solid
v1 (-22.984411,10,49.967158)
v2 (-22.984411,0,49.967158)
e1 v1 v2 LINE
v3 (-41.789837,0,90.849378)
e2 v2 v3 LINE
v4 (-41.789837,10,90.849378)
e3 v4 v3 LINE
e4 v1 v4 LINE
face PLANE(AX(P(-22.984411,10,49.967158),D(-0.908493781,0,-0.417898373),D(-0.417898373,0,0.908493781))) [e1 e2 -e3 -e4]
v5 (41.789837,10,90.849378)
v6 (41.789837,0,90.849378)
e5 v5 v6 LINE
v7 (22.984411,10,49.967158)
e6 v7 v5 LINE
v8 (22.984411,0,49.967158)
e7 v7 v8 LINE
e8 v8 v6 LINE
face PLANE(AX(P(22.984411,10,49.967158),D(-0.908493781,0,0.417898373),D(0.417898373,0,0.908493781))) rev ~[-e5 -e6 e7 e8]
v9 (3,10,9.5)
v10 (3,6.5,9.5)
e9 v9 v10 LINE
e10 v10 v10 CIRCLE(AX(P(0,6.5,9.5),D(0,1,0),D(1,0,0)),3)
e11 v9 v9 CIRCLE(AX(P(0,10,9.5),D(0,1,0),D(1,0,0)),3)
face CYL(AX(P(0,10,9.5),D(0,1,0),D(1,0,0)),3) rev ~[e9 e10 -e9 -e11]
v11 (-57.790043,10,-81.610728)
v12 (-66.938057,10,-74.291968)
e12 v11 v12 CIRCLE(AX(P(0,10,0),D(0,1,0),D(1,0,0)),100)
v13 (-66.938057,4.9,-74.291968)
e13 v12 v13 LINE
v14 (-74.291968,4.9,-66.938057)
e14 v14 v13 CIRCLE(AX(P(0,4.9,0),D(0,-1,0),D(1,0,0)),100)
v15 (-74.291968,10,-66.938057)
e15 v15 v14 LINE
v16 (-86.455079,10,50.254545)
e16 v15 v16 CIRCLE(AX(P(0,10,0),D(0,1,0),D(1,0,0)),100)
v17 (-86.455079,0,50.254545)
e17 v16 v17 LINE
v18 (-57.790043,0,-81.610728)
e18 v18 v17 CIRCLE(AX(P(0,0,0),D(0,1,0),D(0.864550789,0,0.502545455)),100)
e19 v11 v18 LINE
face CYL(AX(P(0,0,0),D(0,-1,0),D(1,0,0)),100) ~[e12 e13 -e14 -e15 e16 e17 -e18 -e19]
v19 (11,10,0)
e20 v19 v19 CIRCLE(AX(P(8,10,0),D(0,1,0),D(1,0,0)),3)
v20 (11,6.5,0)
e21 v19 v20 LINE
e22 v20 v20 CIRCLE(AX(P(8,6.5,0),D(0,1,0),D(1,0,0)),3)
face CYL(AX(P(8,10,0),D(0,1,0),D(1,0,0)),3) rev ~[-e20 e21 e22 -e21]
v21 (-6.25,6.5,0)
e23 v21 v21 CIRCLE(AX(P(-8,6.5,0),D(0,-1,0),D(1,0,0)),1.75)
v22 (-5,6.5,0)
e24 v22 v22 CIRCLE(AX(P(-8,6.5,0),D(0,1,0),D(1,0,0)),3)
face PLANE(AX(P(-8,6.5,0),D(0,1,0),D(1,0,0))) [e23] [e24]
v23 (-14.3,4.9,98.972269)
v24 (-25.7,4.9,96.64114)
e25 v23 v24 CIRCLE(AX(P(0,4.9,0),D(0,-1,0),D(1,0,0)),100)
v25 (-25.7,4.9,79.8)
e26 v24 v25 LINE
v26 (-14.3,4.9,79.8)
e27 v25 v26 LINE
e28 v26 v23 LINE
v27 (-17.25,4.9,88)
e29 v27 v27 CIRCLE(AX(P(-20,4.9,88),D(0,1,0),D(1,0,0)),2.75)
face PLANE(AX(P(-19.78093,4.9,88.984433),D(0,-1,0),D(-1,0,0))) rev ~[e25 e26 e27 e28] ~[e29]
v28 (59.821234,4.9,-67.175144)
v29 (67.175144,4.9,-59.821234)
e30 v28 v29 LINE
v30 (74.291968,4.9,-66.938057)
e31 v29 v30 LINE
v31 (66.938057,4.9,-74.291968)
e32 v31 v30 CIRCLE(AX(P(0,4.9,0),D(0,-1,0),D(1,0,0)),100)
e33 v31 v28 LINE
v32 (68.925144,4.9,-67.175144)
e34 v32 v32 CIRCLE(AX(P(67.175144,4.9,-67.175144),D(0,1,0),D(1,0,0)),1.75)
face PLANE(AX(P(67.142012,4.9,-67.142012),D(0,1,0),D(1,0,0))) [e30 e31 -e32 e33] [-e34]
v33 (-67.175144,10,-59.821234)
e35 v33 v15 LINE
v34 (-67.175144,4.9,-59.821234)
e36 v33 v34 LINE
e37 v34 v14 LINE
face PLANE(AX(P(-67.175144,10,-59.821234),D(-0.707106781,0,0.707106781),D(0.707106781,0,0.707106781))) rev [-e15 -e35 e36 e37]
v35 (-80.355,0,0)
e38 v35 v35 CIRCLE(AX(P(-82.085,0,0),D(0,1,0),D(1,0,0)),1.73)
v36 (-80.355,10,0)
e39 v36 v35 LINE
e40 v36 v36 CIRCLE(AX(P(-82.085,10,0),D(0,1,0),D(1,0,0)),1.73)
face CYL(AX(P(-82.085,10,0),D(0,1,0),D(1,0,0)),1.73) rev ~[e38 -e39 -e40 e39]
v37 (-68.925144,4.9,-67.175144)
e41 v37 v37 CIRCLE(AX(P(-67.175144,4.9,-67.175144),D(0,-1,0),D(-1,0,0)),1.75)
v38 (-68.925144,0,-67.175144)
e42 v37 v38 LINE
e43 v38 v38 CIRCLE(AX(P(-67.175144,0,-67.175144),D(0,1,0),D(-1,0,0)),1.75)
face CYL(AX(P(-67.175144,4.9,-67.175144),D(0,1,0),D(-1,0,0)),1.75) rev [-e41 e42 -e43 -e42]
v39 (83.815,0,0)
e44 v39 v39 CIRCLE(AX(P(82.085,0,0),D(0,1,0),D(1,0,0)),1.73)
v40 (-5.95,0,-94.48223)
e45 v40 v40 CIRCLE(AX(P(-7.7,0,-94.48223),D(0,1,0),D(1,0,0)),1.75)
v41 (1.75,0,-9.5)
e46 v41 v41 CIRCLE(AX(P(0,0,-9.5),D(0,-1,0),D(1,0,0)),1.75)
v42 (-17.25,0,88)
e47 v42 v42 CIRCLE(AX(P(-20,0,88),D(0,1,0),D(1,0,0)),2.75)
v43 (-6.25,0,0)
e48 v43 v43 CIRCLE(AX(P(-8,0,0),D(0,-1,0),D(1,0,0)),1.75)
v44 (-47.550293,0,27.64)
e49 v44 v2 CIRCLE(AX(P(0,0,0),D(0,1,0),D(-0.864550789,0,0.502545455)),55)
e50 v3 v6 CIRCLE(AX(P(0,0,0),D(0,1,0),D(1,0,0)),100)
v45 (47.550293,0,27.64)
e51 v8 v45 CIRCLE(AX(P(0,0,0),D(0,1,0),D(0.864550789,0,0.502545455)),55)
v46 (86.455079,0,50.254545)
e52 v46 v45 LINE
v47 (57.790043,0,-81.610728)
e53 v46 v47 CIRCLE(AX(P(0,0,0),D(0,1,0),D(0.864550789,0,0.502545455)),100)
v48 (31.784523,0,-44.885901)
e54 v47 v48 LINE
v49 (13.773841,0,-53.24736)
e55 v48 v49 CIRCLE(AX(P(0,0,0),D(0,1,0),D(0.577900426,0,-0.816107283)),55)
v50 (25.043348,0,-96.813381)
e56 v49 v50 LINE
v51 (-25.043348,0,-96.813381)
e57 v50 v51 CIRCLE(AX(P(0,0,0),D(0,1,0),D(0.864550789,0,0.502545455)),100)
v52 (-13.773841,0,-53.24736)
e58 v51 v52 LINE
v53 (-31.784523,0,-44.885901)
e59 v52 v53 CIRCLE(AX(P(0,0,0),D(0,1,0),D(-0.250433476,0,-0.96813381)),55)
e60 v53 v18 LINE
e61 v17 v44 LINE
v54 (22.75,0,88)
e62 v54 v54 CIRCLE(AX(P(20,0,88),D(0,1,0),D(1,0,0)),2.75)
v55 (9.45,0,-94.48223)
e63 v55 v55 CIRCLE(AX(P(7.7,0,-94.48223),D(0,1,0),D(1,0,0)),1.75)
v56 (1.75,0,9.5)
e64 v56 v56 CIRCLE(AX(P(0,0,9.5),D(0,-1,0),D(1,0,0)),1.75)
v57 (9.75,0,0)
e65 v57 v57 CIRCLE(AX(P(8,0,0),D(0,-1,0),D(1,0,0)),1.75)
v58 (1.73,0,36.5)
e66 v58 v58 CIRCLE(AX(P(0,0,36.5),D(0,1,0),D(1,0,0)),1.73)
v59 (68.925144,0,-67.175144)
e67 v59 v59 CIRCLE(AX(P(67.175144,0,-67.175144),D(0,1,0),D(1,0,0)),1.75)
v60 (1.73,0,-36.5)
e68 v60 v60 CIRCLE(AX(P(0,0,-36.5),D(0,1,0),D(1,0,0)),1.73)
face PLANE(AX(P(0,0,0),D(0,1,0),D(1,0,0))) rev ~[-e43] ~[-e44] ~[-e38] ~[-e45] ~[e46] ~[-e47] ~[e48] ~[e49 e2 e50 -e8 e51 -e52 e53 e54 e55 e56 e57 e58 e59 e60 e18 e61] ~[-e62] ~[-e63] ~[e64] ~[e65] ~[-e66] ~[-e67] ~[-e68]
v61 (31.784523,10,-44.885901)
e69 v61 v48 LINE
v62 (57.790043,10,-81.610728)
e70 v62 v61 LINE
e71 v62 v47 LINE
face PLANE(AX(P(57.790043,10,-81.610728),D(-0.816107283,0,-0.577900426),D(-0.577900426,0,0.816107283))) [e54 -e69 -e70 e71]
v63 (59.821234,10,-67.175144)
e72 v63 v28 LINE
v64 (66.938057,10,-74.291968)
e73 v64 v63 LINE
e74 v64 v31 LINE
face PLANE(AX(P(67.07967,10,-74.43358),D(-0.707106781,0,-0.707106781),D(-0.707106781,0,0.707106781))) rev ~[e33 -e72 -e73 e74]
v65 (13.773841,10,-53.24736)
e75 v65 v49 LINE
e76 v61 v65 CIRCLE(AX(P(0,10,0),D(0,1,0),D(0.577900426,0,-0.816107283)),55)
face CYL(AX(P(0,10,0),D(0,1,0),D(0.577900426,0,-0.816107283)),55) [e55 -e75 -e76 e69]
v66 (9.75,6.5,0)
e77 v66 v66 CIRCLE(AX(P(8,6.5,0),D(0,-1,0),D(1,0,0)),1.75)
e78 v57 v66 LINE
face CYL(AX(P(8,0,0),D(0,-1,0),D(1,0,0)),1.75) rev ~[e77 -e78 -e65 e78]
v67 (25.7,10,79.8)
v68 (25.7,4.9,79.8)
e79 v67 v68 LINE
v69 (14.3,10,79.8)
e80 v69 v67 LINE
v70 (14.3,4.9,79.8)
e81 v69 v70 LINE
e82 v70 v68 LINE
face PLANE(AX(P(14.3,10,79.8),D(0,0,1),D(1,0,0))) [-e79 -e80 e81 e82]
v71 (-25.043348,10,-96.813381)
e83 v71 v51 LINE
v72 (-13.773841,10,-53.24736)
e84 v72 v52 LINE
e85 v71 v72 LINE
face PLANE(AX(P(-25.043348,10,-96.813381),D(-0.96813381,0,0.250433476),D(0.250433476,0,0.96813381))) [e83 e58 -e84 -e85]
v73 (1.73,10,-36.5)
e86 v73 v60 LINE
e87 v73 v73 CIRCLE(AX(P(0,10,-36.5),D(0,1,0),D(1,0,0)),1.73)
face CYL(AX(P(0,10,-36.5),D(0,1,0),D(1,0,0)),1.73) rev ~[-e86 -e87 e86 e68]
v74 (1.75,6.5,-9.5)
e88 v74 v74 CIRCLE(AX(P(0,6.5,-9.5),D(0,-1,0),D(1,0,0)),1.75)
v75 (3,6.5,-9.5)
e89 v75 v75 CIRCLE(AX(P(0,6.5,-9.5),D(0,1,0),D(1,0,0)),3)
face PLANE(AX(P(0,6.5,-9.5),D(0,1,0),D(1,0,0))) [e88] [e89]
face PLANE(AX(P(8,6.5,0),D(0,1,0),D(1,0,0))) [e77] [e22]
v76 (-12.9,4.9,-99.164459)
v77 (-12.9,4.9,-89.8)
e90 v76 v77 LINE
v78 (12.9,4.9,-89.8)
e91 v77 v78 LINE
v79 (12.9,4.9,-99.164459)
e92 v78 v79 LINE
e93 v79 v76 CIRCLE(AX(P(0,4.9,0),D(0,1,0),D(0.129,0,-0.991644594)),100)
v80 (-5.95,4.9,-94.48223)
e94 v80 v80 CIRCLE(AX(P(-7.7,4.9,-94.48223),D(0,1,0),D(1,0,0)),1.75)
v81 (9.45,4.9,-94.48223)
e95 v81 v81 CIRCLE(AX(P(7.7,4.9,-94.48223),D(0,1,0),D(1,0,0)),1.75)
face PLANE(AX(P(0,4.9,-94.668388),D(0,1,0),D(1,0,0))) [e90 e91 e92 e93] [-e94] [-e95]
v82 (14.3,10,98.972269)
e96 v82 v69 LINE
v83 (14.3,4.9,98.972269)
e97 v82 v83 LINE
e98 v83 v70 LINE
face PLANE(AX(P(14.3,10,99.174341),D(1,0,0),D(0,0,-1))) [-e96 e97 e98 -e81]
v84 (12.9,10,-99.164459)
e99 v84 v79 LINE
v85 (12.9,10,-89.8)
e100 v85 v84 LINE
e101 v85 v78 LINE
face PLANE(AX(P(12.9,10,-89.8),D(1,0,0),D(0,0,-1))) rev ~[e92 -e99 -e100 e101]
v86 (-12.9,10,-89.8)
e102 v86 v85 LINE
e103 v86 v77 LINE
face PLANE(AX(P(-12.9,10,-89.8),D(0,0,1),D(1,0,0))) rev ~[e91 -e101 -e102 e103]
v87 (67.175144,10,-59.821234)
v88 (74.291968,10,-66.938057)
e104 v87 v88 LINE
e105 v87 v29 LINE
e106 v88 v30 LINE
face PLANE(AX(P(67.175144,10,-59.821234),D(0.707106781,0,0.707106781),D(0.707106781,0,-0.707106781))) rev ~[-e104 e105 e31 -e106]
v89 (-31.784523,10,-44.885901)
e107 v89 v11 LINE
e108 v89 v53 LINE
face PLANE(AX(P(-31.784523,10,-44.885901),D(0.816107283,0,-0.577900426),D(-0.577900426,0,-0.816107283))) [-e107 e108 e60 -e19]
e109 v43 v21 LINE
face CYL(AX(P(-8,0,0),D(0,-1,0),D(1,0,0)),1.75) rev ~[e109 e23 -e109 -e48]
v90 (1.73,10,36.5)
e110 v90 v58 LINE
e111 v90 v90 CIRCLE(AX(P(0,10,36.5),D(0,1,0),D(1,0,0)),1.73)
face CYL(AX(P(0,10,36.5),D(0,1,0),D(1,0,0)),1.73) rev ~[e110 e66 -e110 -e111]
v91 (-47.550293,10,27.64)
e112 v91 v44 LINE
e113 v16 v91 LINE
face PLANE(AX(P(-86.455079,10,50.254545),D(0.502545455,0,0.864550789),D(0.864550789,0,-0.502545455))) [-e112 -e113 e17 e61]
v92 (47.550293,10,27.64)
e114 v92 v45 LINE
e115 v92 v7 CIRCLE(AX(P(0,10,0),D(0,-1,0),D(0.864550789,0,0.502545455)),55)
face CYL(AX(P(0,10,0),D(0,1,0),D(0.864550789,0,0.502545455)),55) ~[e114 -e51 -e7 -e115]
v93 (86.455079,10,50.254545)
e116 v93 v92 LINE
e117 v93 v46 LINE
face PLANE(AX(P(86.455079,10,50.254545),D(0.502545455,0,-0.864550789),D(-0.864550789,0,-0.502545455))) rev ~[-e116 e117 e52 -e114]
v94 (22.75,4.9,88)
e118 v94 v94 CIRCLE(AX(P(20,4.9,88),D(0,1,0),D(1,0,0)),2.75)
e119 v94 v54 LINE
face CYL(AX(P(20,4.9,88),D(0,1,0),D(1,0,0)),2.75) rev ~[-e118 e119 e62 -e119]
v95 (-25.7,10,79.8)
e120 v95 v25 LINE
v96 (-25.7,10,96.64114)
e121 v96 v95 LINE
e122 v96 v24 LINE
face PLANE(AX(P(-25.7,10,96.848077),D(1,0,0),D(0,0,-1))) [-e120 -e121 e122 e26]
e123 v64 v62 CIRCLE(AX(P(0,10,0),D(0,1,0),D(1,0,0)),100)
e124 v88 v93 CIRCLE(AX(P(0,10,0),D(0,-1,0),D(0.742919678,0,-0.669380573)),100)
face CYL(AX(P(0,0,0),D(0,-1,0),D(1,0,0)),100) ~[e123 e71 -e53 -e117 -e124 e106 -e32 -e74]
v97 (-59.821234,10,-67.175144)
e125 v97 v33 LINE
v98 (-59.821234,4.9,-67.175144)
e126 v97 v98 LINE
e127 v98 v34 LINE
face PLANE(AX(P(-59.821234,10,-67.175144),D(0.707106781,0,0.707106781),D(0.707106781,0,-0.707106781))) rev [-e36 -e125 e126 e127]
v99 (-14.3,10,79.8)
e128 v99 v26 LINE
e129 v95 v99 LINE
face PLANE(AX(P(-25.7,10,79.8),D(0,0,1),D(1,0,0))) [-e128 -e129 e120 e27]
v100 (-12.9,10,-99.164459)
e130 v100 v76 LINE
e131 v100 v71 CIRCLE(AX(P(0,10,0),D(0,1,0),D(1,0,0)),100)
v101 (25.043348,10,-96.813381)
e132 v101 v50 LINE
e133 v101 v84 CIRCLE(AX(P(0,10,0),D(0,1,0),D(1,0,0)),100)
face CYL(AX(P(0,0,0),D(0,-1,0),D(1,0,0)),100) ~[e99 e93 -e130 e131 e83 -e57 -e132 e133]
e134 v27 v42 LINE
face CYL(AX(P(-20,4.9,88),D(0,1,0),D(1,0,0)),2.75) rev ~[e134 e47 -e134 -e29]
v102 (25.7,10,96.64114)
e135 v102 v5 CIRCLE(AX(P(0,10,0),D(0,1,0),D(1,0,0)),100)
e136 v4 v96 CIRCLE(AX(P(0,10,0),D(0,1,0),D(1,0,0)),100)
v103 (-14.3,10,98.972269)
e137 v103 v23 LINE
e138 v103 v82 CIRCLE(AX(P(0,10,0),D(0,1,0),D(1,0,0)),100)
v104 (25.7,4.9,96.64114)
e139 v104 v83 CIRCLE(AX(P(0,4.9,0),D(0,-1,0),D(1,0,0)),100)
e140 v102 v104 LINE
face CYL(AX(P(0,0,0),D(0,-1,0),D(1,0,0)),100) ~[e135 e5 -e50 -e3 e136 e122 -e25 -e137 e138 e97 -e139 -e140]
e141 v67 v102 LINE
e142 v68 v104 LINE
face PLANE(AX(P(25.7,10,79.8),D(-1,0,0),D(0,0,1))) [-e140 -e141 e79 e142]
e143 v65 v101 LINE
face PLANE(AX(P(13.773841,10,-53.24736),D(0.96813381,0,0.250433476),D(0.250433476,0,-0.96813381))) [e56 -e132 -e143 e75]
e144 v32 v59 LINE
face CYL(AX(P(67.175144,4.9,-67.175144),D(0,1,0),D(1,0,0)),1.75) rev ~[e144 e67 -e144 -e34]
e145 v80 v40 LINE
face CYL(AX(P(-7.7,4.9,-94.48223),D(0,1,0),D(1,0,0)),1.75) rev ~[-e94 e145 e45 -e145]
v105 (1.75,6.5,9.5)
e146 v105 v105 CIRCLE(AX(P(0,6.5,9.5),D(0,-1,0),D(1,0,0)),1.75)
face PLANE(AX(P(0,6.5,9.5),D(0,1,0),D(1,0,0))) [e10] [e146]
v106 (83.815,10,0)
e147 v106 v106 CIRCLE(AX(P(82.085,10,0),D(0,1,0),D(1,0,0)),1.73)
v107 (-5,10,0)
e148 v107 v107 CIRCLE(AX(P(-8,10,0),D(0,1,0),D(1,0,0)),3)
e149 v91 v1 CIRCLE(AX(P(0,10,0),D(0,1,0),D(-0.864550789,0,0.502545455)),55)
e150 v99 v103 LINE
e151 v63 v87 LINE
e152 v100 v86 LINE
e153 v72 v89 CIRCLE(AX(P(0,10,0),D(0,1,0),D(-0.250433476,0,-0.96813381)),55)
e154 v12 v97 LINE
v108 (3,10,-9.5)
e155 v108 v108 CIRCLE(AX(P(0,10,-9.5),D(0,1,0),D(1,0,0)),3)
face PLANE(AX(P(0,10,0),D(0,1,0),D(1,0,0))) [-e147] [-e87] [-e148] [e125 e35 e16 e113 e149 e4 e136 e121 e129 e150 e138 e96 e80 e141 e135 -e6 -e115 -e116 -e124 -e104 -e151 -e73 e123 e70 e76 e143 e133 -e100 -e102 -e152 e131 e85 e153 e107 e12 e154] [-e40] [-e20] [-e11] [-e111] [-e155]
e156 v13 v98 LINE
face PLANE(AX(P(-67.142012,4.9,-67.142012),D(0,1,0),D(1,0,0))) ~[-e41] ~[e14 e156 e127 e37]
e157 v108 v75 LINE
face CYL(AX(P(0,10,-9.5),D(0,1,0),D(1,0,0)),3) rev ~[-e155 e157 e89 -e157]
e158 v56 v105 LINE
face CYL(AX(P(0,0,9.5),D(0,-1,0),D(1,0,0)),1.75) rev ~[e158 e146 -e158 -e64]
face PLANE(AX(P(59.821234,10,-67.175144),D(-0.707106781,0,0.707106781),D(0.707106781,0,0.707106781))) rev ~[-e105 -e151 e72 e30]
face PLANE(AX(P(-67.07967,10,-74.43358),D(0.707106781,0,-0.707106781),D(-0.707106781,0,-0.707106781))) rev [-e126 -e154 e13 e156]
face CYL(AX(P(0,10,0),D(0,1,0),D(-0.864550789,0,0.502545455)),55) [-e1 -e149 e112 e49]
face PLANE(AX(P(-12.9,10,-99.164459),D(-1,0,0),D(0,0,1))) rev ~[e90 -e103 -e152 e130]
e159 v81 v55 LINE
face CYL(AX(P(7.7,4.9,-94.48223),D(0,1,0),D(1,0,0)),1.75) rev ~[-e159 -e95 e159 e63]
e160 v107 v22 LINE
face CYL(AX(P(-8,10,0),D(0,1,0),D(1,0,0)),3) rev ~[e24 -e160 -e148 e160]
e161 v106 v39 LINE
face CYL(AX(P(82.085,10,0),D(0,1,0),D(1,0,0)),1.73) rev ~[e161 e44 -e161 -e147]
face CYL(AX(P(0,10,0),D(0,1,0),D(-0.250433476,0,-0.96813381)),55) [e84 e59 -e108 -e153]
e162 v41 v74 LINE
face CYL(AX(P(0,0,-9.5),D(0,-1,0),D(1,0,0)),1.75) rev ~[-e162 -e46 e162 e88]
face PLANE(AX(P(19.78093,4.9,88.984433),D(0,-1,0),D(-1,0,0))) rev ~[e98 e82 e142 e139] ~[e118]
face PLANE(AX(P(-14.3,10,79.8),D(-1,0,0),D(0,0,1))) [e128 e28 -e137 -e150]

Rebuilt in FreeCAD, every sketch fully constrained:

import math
import FreeCAD as App
import Part
import Sketcher
Q = App.Units.Quantity

doc = App.newDocument("Part")
body = doc.addObject("PartDesign::Body", "Body")

# Sketch on XZ plane
sketch1 = doc.addObject("Sketcher::SketchObject", "Sketch")
body.addObject(sketch1)
sketch1.AttachmentSupport = (doc.XZ_Plane, [""])
sketch1.MapMode = "FlatFace"
sketch1.addGeometry(Part.Circle(App.Vector(0, 0, 0), App.Vector(0, 0, 1), 100), False)
sketch1.addConstraint(Sketcher.Constraint("Coincident", 0, 3, -1, 1))
sketch1.addConstraint(Sketcher.Constraint("Diameter", 0, Q("200 mm")))
pad1 = doc.addObject("PartDesign::Pad", "Pad")
body.addObject(pad1)
pad1.Profile = sketch1
pad1.Length = 10
pad1.Reversed = True

# Sketch on XZ plane
sketch2 = doc.addObject("Sketcher::SketchObject", "Sketch001")
body.addObject(sketch2)
sketch2.AttachmentSupport = (doc.XZ_Plane, [""])
sketch2.MapMode = "FlatFace"
sketch2.AttachmentOffset = App.Placement(App.Vector(0, 0, -10), App.Rotation())
sketch2.addGeometry(Part.Circle(App.Vector(-82.1, 0, 0), App.Vector(0, 0, 1), 1.7), False)
sketch2.addGeometry(Part.Circle(App.Vector(0, 36.5, 0), App.Vector(0, 0, 1), 1.7), False)
sketch2.addGeometry(Part.Circle(App.Vector(82.1, 0, 0), App.Vector(0, 0, 1), 1.7), False)
sketch2.addGeometry(Part.Circle(App.Vector(0, -36.5, 0), App.Vector(0, 0, 1), 1.7), False)
sketch2.addConstraint(Sketcher.Constraint("Equal", 0, 1))
sketch2.addConstraint(Sketcher.Constraint("Equal", 1, 2))
sketch2.addConstraint(Sketcher.Constraint("Equal", 2, 3))
sketch2.addConstraint(Sketcher.Constraint("Symmetric", 0, 3, 2, 3, -1, 1))
sketch2.addConstraint(Sketcher.Constraint("Symmetric", 1, 3, 3, 3, -1, 1))
sketch2.addConstraint(Sketcher.Constraint("PointOnObject", 0, 3, -1))
sketch2.addConstraint(Sketcher.Constraint("PointOnObject", 1, 3, -2))
sketch2.addConstraint(Sketcher.Constraint("Diameter", 0, Q("3.46 mm")))
sketch2.addConstraint(Sketcher.Constraint("DistanceY", 3, 3, 1, 3, Q("73 mm")))
sketch2.addConstraint(Sketcher.Constraint("DistanceX", 0, 3, 2, 3, Q("164.17 mm")))
pocket1 = doc.addObject("PartDesign::Pocket", "Pocket")
body.addObject(pocket1)
pocket1.Profile = sketch2
pocket1.Type = "ThroughAll"
pocket1.Reversed = True

# Sketch on XZ plane
sketch3 = doc.addObject("Sketcher::SketchObject", "Sketch002")
body.addObject(sketch3)
sketch3.AttachmentSupport = (doc.XZ_Plane, [""])
sketch3.MapMode = "FlatFace"
sketch3.addGeometry(Part.Circle(App.Vector(8, 0, 0), App.Vector(0, 0, 1), 1.8), False)
sketch3.addGeometry(Part.Circle(App.Vector(0, 9.5, 0), App.Vector(0, 0, 1), 1.8), False)
sketch3.addGeometry(Part.Circle(App.Vector(-8, 0, 0), App.Vector(0, 0, 1), 1.8), False)
sketch3.addGeometry(Part.Circle(App.Vector(0, -9.5, 0), App.Vector(0, 0, 1), 1.8), False)
sketch3.addConstraint(Sketcher.Constraint("Equal", 0, 1))
sketch3.addConstraint(Sketcher.Constraint("Equal", 1, 2))
sketch3.addConstraint(Sketcher.Constraint("Equal", 2, 3))
sketch3.addConstraint(Sketcher.Constraint("Symmetric", 0, 3, 2, 3, -1, 1))
sketch3.addConstraint(Sketcher.Constraint("Symmetric", 1, 3, 3, 3, -1, 1))
sketch3.addConstraint(Sketcher.Constraint("PointOnObject", 0, 3, -1))
sketch3.addConstraint(Sketcher.Constraint("PointOnObject", 1, 3, -2))
sketch3.addConstraint(Sketcher.Constraint("Diameter", 0, Q("3.5 mm")))
sketch3.addConstraint(Sketcher.Constraint("DistanceX", -1, 1, 0, 3, Q("8 mm")))
sketch3.addConstraint(Sketcher.Constraint("DistanceY", 3, 3, 1, 3, Q("19 mm")))
pocket2 = doc.addObject("PartDesign::Pocket", "Pocket001")
body.addObject(pocket2)
pocket2.Profile = sketch3
pocket2.Length = 10

# Sketch on XZ plane
sketch4 = doc.addObject("Sketcher::SketchObject", "Sketch003")
body.addObject(sketch4)
sketch4.AttachmentSupport = (doc.XZ_Plane, [""])
sketch4.MapMode = "FlatFace"
sketch4.AttachmentOffset = App.Placement(App.Vector(0, 0, -10), App.Rotation())
sketch4.addGeometry(Part.Circle(App.Vector(0, -9.5, 0), App.Vector(0, 0, 1), 3), False)
sketch4.addGeometry(Part.Circle(App.Vector(-8, 0, 0), App.Vector(0, 0, 1), 3), False)
sketch4.addGeometry(Part.Circle(App.Vector(0, 9.5, 0), App.Vector(0, 0, 1), 3), False)
sketch4.addGeometry(Part.Circle(App.Vector(8, 0, 0), App.Vector(0, 0, 1), 3), False)
sketch4.addConstraint(Sketcher.Constraint("Equal", 0, 1))
sketch4.addConstraint(Sketcher.Constraint("Equal", 1, 2))
sketch4.addConstraint(Sketcher.Constraint("Equal", 2, 3))
sketch4.addConstraint(Sketcher.Constraint("Symmetric", 0, 3, 2, 3, -1, 1))
sketch4.addConstraint(Sketcher.Constraint("Symmetric", 1, 3, 3, 3, -1, 1))
sketch4.addConstraint(Sketcher.Constraint("PointOnObject", 0, 3, -2))
sketch4.addConstraint(Sketcher.Constraint("PointOnObject", 1, 3, -1))
sketch4.addConstraint(Sketcher.Constraint("Diameter", 0, Q("6 mm")))
sketch4.addConstraint(Sketcher.Constraint("DistanceX", 1, 3, -1, 1, Q("8 mm")))
sketch4.addConstraint(Sketcher.Constraint("DistanceY", 0, 3, 2, 3, Q("19 mm")))
pocket3 = doc.addObject("PartDesign::Pocket", "Pocket002")
body.addObject(pocket3)
pocket3.Profile = sketch4
pocket3.Length = 3.5
pocket3.Reversed = True

# Sketch on XZ plane
sketch5 = doc.addObject("Sketcher::SketchObject", "Sketch004")
body.addObject(sketch5)
sketch5.AttachmentSupport = (doc.XZ_Plane, [""])
sketch5.MapMode = "FlatFace"
sketch5.AttachmentOffset = App.Placement(App.Vector(0, 0, -10), App.Rotation())
sketch5.addGeometry(Part.LineSegment(App.Vector(-14, 99, 0), App.Vector(-14, 80, 0)), False)
sketch5.addGeometry(Part.LineSegment(App.Vector(-14, 80, 0), App.Vector(-26, 80, 0)), False)
sketch5.addGeometry(Part.LineSegment(App.Vector(-26, 80, 0), App.Vector(-26, 97, 0)), False)
sketch5.addGeometry(Part.ArcOfCircle(Part.Circle(App.Vector(0, 0, 0), App.Vector(0, 0, 1), 100), math.radians(98.2), math.radians(104.86)), False)
sketch5.addGeometry(Part.LineSegment(App.Vector(26, 97, 0), App.Vector(26, 80, 0)), False)
sketch5.addGeometry(Part.LineSegment(App.Vector(26, 80, 0), App.Vector(14, 80, 0)), False)
sketch5.addGeometry(Part.LineSegment(App.Vector(14, 80, 0), App.Vector(14, 99, 0)), False)
sketch5.addGeometry(Part.ArcOfCircle(Part.Circle(App.Vector(0, 0, 0), App.Vector(0, 0, 1), 100), math.radians(75.14), math.radians(81.8)), False)
sketch5.addConstraint(Sketcher.Constraint("Coincident", 0, 2, 1, 1))
sketch5.addConstraint(Sketcher.Constraint("Coincident", 1, 2, 2, 1))
sketch5.addConstraint(Sketcher.Constraint("Coincident", 2, 2, 3, 2))
sketch5.addConstraint(Sketcher.Constraint("Coincident", 3, 1, 0, 1))
sketch5.addConstraint(Sketcher.Constraint("Coincident", 4, 2, 5, 1))
sketch5.addConstraint(Sketcher.Constraint("Coincident", 5, 2, 6, 1))
sketch5.addConstraint(Sketcher.Constraint("Coincident", 6, 2, 7, 2))
sketch5.addConstraint(Sketcher.Constraint("Coincident", 7, 1, 4, 1))
sketch5.addConstraint(Sketcher.Constraint("Vertical", 0))
sketch5.addConstraint(Sketcher.Constraint("Horizontal", 1))
sketch5.addConstraint(Sketcher.Constraint("Vertical", 2))
sketch5.addConstraint(Sketcher.Constraint("Vertical", 4))
sketch5.addConstraint(Sketcher.Constraint("Horizontal", 5))
sketch5.addConstraint(Sketcher.Constraint("Vertical", 6))
sketch5.addConstraint(Sketcher.Constraint("Coincident", 3, 3, -1, 1))
sketch5.addConstraint(Sketcher.Constraint("Coincident", 7, 3, -1, 1))
sketch5.addConstraint(Sketcher.Constraint("Equal", 3, 7))
sketch5.addConstraint(Sketcher.Constraint("Symmetric", 1, 2, 4, 2, -2))
sketch5.addConstraint(Sketcher.Constraint("Horizontal", 3, 1, 6, 2))
sketch5.addConstraint(Sketcher.Constraint("Radius", 3, Q("100.2 mm")))
sketch5.addConstraint(Sketcher.Constraint("DistanceX", 1, 2, 1, 1, Q("11.4 mm")))
sketch5.addConstraint(Sketcher.Constraint("DistanceX", 0, 2, 4, 2, Q("40 mm")))
sketch5.addConstraint(Sketcher.Constraint("DistanceY", -1, 1, 0, 2, Q("79.8 mm")))
pocket4 = doc.addObject("PartDesign::Pocket", "Pocket003")
body.addObject(pocket4)
pocket4.Profile = sketch5
pocket4.Length = 5.1
pocket4.Reversed = True

# Sketch on XZ plane
sketch6 = doc.addObject("Sketcher::SketchObject", "Sketch005")
body.addObject(sketch6)
sketch6.AttachmentSupport = (doc.XZ_Plane, [""])
sketch6.MapMode = "FlatFace"
sketch6.AttachmentOffset = App.Placement(App.Vector(0, 0, -10), App.Rotation())
sketch6.addGeometry(Part.LineSegment(App.Vector(-13, -99, 0), App.Vector(-13, -90, 0)), False)
sketch6.addGeometry(Part.LineSegment(App.Vector(-13, -90, 0), App.Vector(13, -90, 0)), False)
sketch6.addGeometry(Part.LineSegment(App.Vector(13, -90, 0), App.Vector(13, -99, 0)), False)
sketch6.addGeometry(Part.ArcOfCircle(Part.Circle(App.Vector(0, 0, 0), App.Vector(0, 0, 1), 100), math.radians(-97.41), math.radians(-82.59)), False)
sketch6.addConstraint(Sketcher.Constraint("Coincident", 0, 2, 1, 1))
sketch6.addConstraint(Sketcher.Constraint("Coincident", 1, 2, 2, 1))
sketch6.addConstraint(Sketcher.Constraint("Coincident", 2, 2, 3, 2))
sketch6.addConstraint(Sketcher.Constraint("Coincident", 3, 1, 0, 1))
sketch6.addConstraint(Sketcher.Constraint("Vertical", 0))
sketch6.addConstraint(Sketcher.Constraint("Horizontal", 1))
sketch6.addConstraint(Sketcher.Constraint("Vertical", 2))
sketch6.addConstraint(Sketcher.Constraint("Coincident", 3, 3, -1, 1))
sketch6.addConstraint(Sketcher.Constraint("Horizontal", 2, 2, 3, 1))
sketch6.addConstraint(Sketcher.Constraint("Radius", 3, Q("100 mm")))
sketch6.addConstraint(Sketcher.Constraint("DistanceX", 1, 1, 1, 2, Q("25.8 mm")))
sketch6.addConstraint(Sketcher.Constraint("DistanceY", 0, 2, -1, 1, Q("89.8 mm")))
pocket5 = doc.addObject("PartDesign::Pocket", "Pocket004")
body.addObject(pocket5)
pocket5.Profile = sketch6
pocket5.Length = 5.1
pocket5.Reversed = True

# Sketch on XZ plane
sketch7 = doc.addObject("Sketcher::SketchObject", "Sketch006")
body.addObject(sketch7)
sketch7.AttachmentSupport = (doc.XZ_Plane, [""])
sketch7.MapMode = "FlatFace"
sketch7.AttachmentOffset = App.Placement(App.Vector(0, 0, -4.9), App.Rotation())
sketch7.addGeometry(Part.Circle(App.Vector(-7.7, -94.5, 0), App.Vector(0, 0, 1), 1.8), False)
sketch7.addGeometry(Part.Circle(App.Vector(7.7, -94.5, 0), App.Vector(0, 0, 1), 1.8), False)
sketch7.addConstraint(Sketcher.Constraint("Equal", 0, 1))
sketch7.addConstraint(Sketcher.Constraint("Symmetric", 0, 3, 1, 3, -2))
sketch7.addConstraint(Sketcher.Constraint("Diameter", 0, Q("3.5 mm")))
sketch7.addConstraint(Sketcher.Constraint("DistanceX", 0, 3, -1, 1, Q("7.7 mm")))
sketch7.addConstraint(Sketcher.Constraint("DistanceY", 0, 3, -1, 1, Q("94.48223 mm")))
pocket6 = doc.addObject("PartDesign::Pocket", "Pocket005")
body.addObject(pocket6)
pocket6.Profile = sketch7
pocket6.Type = "ThroughAll"
pocket6.Reversed = True

# Sketch on XZ plane
sketch8 = doc.addObject("Sketcher::SketchObject", "Sketch007")
body.addObject(sketch8)
sketch8.AttachmentSupport = (doc.XZ_Plane, [""])
sketch8.MapMode = "FlatFace"
sketch8.AttachmentOffset = App.Placement(App.Vector(0, 0, -10), App.Rotation())
sketch8.addGeometry(Part.LineSegment(App.Vector(67, -74, 0), App.Vector(60, -67, 0)), False)
sketch8.addGeometry(Part.LineSegment(App.Vector(60, -67, 0), App.Vector(67, -60, 0)), False)
sketch8.addGeometry(Part.LineSegment(App.Vector(67, -60, 0), App.Vector(74, -67, 0)), False)
sketch8.addGeometry(Part.ArcOfCircle(Part.Circle(App.Vector(0, 0, 0), App.Vector(0, 0, 1), 100), math.radians(-47.97), math.radians(-42.03)), False)
sketch8.addConstraint(Sketcher.Constraint("Coincident", 0, 2, 1, 1))
sketch8.addConstraint(Sketcher.Constraint("Coincident", 1, 2, 2, 1))
sketch8.addConstraint(Sketcher.Constraint("Coincident", 2, 2, 3, 2))
sketch8.addConstraint(Sketcher.Constraint("Coincident", 3, 1, 0, 1))
sketch8.addConstraint(Sketcher.Constraint("Coincident", 3, 3, -1, 1))
sketch8.addConstraint(Sketcher.Constraint("Perpendicular", 0, 1))
sketch8.addConstraint(Sketcher.Constraint("Perpendicular", 1, 2))
sketch8.addConstraint(Sketcher.Constraint("Equal", 0, 2))
sketch8.addConstraint(Sketcher.Constraint("Radius", 3, Q("100.2 mm")))
sketch8.addConstraint(Sketcher.Constraint("Angle", 0, Q("135 deg")))
sketch8.addConstraint(Sketcher.Constraint("Distance", 1, Q("10.4 mm")))
sketch8.addConstraint(Sketcher.Constraint("Distance", 0, Q("10.264979 mm")))
pocket7 = doc.addObject("PartDesign::Pocket", "Pocket006")
body.addObject(pocket7)
pocket7.Profile = sketch8
pocket7.Length = 5.1
pocket7.Reversed = True

# Sketch on XZ plane
sketch9 = doc.addObject("Sketcher::SketchObject", "Sketch008")
body.addObject(sketch9)
sketch9.AttachmentSupport = (doc.XZ_Plane, [""])
sketch9.MapMode = "FlatFace"
sketch9.AttachmentOffset = App.Placement(App.Vector(0, 0, -4.9), App.Rotation())
sketch9.addGeometry(Part.Circle(App.Vector(67.2, -67.2, 0), App.Vector(0, 0, 1), 1.8), False)
sketch9.addConstraint(Sketcher.Constraint("Diameter", 0, Q("3.5 mm")))
sketch9.addConstraint(Sketcher.Constraint("DistanceX", -1, 1, 0, 3, Q("67.175144 mm")))
sketch9.addConstraint(Sketcher.Constraint("DistanceY", 0, 3, -1, 1, Q("67.175144 mm")))
pocket8 = doc.addObject("PartDesign::Pocket", "Pocket007")
body.addObject(pocket8)
pocket8.Profile = sketch9
pocket8.Type = "ThroughAll"
pocket8.Reversed = True
doc.recompute()

mirrored = doc.addObject("PartDesign::Mirrored", "Mirrored")
body.addObject(mirrored)
mirrored.Originals = [pocket7, pocket8]
mirrored.MirrorPlane = (doc.YZ_Plane, [""])
body.Tip = mirrored

# Sketch on XZ plane
sketch10 = doc.addObject("Sketcher::SketchObject", "Sketch009")
body.addObject(sketch10)
sketch10.AttachmentSupport = (doc.XZ_Plane, [""])
sketch10.MapMode = "FlatFace"
sketch10.AttachmentOffset = App.Placement(App.Vector(0, 0, -10), App.Rotation())
sketch10.addGeometry(Part.LineSegment(App.Vector(-42, 91, 0), App.Vector(-23, 50, 0)), False)
sketch10.addGeometry(Part.ArcOfCircle(Part.Circle(App.Vector(0, 0, 0), App.Vector(0, 0, 1), 55), math.radians(115), math.radians(150)), False)
sketch10.addGeometry(Part.LineSegment(App.Vector(-48, 28, 0), App.Vector(-86, 50, 0)), False)
sketch10.addGeometry(Part.ArcOfCircle(Part.Circle(App.Vector(0, 0, 0), App.Vector(0, 0, 1), 100), math.radians(115), math.radians(150)), False)
sketch10.addGeometry(Part.LineSegment(App.Vector(23, 50, 0), App.Vector(42, 91, 0)), False)
sketch10.addGeometry(Part.ArcOfCircle(Part.Circle(App.Vector(0, 0, 0), App.Vector(0, 0, 1), 100), math.radians(30), math.radians(65)), False)
sketch10.addGeometry(Part.LineSegment(App.Vector(86, 50, 0), App.Vector(48, 28, 0)), False)
sketch10.addGeometry(Part.ArcOfCircle(Part.Circle(App.Vector(0, 0, 0), App.Vector(0, 0, 1), 55), math.radians(30), math.radians(65)), False)
sketch10.addConstraint(Sketcher.Constraint("Coincident", 0, 2, 1, 1))
sketch10.addConstraint(Sketcher.Constraint("Coincident", 1, 2, 2, 1))
sketch10.addConstraint(Sketcher.Constraint("Coincident", 2, 2, 3, 2))
sketch10.addConstraint(Sketcher.Constraint("Coincident", 3, 1, 0, 1))
sketch10.addConstraint(Sketcher.Constraint("Coincident", 4, 2, 5, 2))
sketch10.addConstraint(Sketcher.Constraint("Coincident", 5, 1, 6, 1))
sketch10.addConstraint(Sketcher.Constraint("Coincident", 6, 2, 7, 1))
sketch10.addConstraint(Sketcher.Constraint("Coincident", 7, 2, 4, 1))
sketch10.addConstraint(Sketcher.Constraint("Coincident", 1, 3, -1, 1))
sketch10.addConstraint(Sketcher.Constraint("Coincident", 3, 3, -1, 1))
sketch10.addConstraint(Sketcher.Constraint("Coincident", 5, 3, -1, 1))
sketch10.addConstraint(Sketcher.Constraint("Coincident", 7, 3, -1, 1))
sketch10.addConstraint(Sketcher.Constraint("Equal", 3, 5))
sketch10.addConstraint(Sketcher.Constraint("Equal", 1, 7))
sketch10.addConstraint(Sketcher.Constraint("Horizontal", 3, 1, 4, 2))
sketch10.addConstraint(Sketcher.Constraint("Horizontal", 2, 2, 5, 1))
sketch10.addConstraint(Sketcher.Constraint("Horizontal", 1, 2, 6, 2))
sketch10.addConstraint(Sketcher.Constraint("Horizontal", 0, 2, 7, 2))
sketch10.addConstraint(Sketcher.Constraint("Radius", 1, Q("55 mm")))
sketch10.addConstraint(Sketcher.Constraint("Radius", 3, Q("100 mm")))
sketch10.addConstraint(Sketcher.Constraint("DistanceY", -1, 1, 1, 2, Q("27.64 mm")))
sketch10.addConstraint(Sketcher.Constraint("DistanceX", 0, 2, -1, 1, Q("22.984411 mm")))
sketch10.addConstraint(Sketcher.Constraint("DistanceX", 2, 2, -1, 1, Q("86.455079 mm")))
sketch10.addConstraint(Sketcher.Constraint("DistanceY", -1, 1, 3, 1, Q("90.849378 mm")))
pocket9 = doc.addObject("PartDesign::Pocket", "Pocket008")
body.addObject(pocket9)
pocket9.Profile = sketch10
pocket9.Type = "ThroughAll"
pocket9.Reversed = True

# Sketch on XZ plane
sketch11 = doc.addObject("Sketcher::SketchObject", "Sketch010")
body.addObject(sketch11)
sketch11.AttachmentSupport = (doc.XZ_Plane, [""])
sketch11.MapMode = "FlatFace"
sketch11.AttachmentOffset = App.Placement(App.Vector(0, 0, -10), App.Rotation())
sketch11.addGeometry(Part.LineSegment(App.Vector(-58, -82, 0), App.Vector(-32, -45, 0)), False)
sketch11.addGeometry(Part.ArcOfCircle(Part.Circle(App.Vector(0, 0, 0), App.Vector(0, 0, 1), 55), math.radians(-125), math.radians(-105)), False)
sketch11.addGeometry(Part.LineSegment(App.Vector(-14, -53, 0), App.Vector(-25, -97, 0)), False)
sketch11.addGeometry(Part.ArcOfCircle(Part.Circle(App.Vector(0, 0, 0), App.Vector(0, 0, 1), 100), math.radians(-125), math.radians(-105)), False)
sketch11.addGeometry(Part.LineSegment(App.Vector(25, -97, 0), App.Vector(14, -53, 0)), False)
sketch11.addGeometry(Part.ArcOfCircle(Part.Circle(App.Vector(0, 0, 0), App.Vector(0, 0, 1), 55), math.radians(-75), math.radians(-55)), False)
sketch11.addGeometry(Part.LineSegment(App.Vector(32, -45, 0), App.Vector(58, -82, 0)), False)
sketch11.addGeometry(Part.ArcOfCircle(Part.Circle(App.Vector(0, 0, 0), App.Vector(0, 0, 1), 100), math.radians(-75), math.radians(-55)), False)
sketch11.addConstraint(Sketcher.Constraint("Coincident", 0, 2, 1, 1))
sketch11.addConstraint(Sketcher.Constraint("Coincident", 1, 2, 2, 1))
sketch11.addConstraint(Sketcher.Constraint("Coincident", 2, 2, 3, 2))
sketch11.addConstraint(Sketcher.Constraint("Coincident", 3, 1, 0, 1))
sketch11.addConstraint(Sketcher.Constraint("Coincident", 4, 2, 5, 1))
sketch11.addConstraint(Sketcher.Constraint("Coincident", 5, 2, 6, 1))
sketch11.addConstraint(Sketcher.Constraint("Coincident", 6, 2, 7, 2))
sketch11.addConstraint(Sketcher.Constraint("Coincident", 7, 1, 4, 1))
sketch11.addConstraint(Sketcher.Constraint("Coincident", 1, 3, -1, 1))
sketch11.addConstraint(Sketcher.Constraint("Coincident", 3, 3, -1, 1))
sketch11.addConstraint(Sketcher.Constraint("Coincident", 5, 3, -1, 1))
sketch11.addConstraint(Sketcher.Constraint("Coincident", 7, 3, -1, 1))
sketch11.addConstraint(Sketcher.Constraint("Equal", 1, 5))
sketch11.addConstraint(Sketcher.Constraint("Equal", 3, 7))
sketch11.addConstraint(Sketcher.Constraint("Horizontal", 1, 2, 4, 2))
sketch11.addConstraint(Sketcher.Constraint("Horizontal", 0, 2, 5, 2))
sketch11.addConstraint(Sketcher.Constraint("Horizontal", 3, 1, 6, 2))
sketch11.addConstraint(Sketcher.Constraint("Horizontal", 2, 2, 7, 1))
sketch11.addConstraint(Sketcher.Constraint("Radius", 1, Q("55 mm")))
sketch11.addConstraint(Sketcher.Constraint("Radius", 3, Q("100 mm")))
sketch11.addConstraint(Sketcher.Constraint("DistanceY", 0, 2, -1, 1, Q("44.885901 mm")))
sketch11.addConstraint(Sketcher.Constraint("DistanceX", 3, 1, 1, 2, Q("44.016201 mm")))
sketch11.addConstraint(Sketcher.Constraint("DistanceX", 1, 2, -1, 1, Q("13.773841 mm")))
sketch11.addConstraint(Sketcher.Constraint("DistanceY", 2, 2, -1, 1, Q("96.813381 mm")))
pocket10 = doc.addObject("PartDesign::Pocket", "Pocket009")
body.addObject(pocket10)
pocket10.Profile = sketch11
pocket10.Type = "ThroughAll"
pocket10.Reversed = True

# Sketch on XZ plane
sketch12 = doc.addObject("Sketcher::SketchObject", "Sketch011")
body.addObject(sketch12)
sketch12.AttachmentSupport = (doc.XZ_Plane, [""])
sketch12.MapMode = "FlatFace"
sketch12.AttachmentOffset = App.Placement(App.Vector(0, 0, -4.9), App.Rotation())
sketch12.addGeometry(Part.Circle(App.Vector(-20, 88, 0), App.Vector(0, 0, 1), 2.8), False)
sketch12.addGeometry(Part.Circle(App.Vector(20, 88, 0), App.Vector(0, 0, 1), 2.8), False)
sketch12.addConstraint(Sketcher.Constraint("Equal", 0, 1))
sketch12.addConstraint(Sketcher.Constraint("Symmetric", 0, 3, 1, 3, -2))
sketch12.addConstraint(Sketcher.Constraint("Diameter", 0, Q("5.5 mm")))
sketch12.addConstraint(Sketcher.Constraint("DistanceX", 0, 3, -1, 1, Q("20 mm")))
sketch12.addConstraint(Sketcher.Constraint("DistanceY", -1, 1, 0, 3, Q("88 mm")))
pocket11 = doc.addObject("PartDesign::Pocket", "Pocket010")
body.addObject(pocket11)
pocket11.Profile = sketch12
pocket11.Type = "ThroughAll"
pocket11.Reversed = True

doc.recompute()
